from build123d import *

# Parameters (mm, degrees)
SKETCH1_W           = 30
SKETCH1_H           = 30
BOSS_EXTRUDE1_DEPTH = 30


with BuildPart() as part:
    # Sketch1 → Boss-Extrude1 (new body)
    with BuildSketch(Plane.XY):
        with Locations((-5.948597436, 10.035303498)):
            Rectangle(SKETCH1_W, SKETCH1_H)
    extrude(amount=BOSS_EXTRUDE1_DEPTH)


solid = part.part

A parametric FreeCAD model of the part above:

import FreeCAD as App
import Part
import Sketcher
from FreeCAD import Vector
Q = App.Units.Quantity

doc = App.newDocument("Part")
body = doc.addObject("PartDesign::Body", "Body")

sketch1 = body.newObject("Sketcher::SketchObject", "Sketch")
sketch1.AttachmentSupport = (doc.getObject("XY_Plane"), [""])
sketch1.MapMode = "FlatFace"
sketch1.addGeometry([
    Part.LineSegment(Vector(-21, 25, 0), Vector(-21, -5, 0)),
    Part.LineSegment(Vector(-21, -5, 0), Vector(9, -5, 0)),
    Part.LineSegment(Vector(9, -5, 0), Vector(9, 25, 0)),
    Part.LineSegment(Vector(9, 25, 0), Vector(-21, 25, 0)),
], False)
sketch1.addConstraint([
    Sketcher.Constraint("Coincident", 0, 2, 1, 1),
    Sketcher.Constraint("Coincident", 1, 2, 2, 1),
    Sketcher.Constraint("Coincident", 2, 2, 3, 1),
    Sketcher.Constraint("Coincident", 3, 2, 0, 1),
    Sketcher.Constraint("Vertical", 0),
    Sketcher.Constraint("Horizontal", 1),
    Sketcher.Constraint("Vertical", 2),
    Sketcher.Constraint("Horizontal", 3),
    Sketcher.Constraint("Equal", 3, 0),
    Sketcher.Constraint("DistanceX", 1, 1, 1, 2, Q("30 mm")),
    Sketcher.Constraint("DistanceX", 0, 2, -1, 1, Q("20.948597 mm")),
    Sketcher.Constraint("DistanceY", 0, 2, -1, 1, Q("4.964697 mm")),
])
pad1 = body.newObject("PartDesign::Pad", "Pad")
pad1.Profile = sketch1
pad1.Length = 30

doc.recompute()
